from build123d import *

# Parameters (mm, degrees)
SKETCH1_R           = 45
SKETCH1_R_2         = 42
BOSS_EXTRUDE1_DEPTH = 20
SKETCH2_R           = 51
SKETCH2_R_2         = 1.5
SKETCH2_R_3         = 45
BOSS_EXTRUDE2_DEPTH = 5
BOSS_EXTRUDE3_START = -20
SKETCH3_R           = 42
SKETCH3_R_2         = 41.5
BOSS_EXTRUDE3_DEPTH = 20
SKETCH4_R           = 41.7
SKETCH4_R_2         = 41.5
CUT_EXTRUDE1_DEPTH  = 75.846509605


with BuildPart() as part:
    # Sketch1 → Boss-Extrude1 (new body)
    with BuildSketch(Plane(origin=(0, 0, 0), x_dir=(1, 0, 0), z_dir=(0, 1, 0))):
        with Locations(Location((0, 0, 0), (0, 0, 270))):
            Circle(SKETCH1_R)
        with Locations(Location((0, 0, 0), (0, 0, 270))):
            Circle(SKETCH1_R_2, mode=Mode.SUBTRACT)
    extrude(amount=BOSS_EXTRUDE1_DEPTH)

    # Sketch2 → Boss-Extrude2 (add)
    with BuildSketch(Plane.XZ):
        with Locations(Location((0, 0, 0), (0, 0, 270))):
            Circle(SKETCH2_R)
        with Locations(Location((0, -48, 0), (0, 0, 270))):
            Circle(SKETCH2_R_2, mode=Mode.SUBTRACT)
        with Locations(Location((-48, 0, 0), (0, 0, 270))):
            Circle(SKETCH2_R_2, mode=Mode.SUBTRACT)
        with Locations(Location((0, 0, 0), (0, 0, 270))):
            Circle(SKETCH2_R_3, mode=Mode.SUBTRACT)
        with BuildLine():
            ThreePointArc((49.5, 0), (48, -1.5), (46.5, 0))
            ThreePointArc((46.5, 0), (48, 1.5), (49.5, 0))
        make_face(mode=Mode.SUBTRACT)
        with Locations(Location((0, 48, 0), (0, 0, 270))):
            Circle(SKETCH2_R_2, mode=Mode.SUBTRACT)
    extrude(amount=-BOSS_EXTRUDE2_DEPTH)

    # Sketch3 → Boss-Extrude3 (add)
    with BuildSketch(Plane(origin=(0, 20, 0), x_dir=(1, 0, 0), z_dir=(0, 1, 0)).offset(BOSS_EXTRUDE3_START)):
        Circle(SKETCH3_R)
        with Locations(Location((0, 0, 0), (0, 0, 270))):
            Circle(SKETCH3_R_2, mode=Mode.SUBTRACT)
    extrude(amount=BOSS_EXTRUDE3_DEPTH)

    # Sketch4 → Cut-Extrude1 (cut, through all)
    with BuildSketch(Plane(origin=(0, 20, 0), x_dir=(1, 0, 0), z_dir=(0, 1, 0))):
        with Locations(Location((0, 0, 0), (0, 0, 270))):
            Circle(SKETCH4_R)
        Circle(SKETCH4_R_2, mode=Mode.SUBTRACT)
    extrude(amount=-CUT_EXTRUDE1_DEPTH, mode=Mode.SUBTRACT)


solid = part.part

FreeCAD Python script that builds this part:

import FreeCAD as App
import Part
import Sketcher

doc = App.newDocument("Part")
body = doc.addObject("PartDesign::Body", "Body")

sketch1 = body.newObject("Sketcher::SketchObject", "Sketch")
sketch1.AttachmentSupport = (doc.getObject("XZ_Plane"), [""])
sketch1.MapMode = "FlatFace"
sketch1.addGeometry([
    Part.Circle(App.Vector(0, 0, 0), App.Vector(0, 0, 1), 45),
    Part.Circle(App.Vector(0, 0, 0), App.Vector(0, 0, 1), 42),
], False)
sketch1.addConstraint([
    Sketcher.Constraint("Coincident", 0, 3, -1, 1),
    Sketcher.Constraint("Coincident", 1, 3, -1, 1),
    Sketcher.Constraint("Diameter", 0, 90.0),
    Sketcher.Constraint("Diameter", 1, 84.0),
])
pad1 = body.newObject("PartDesign::Pad", "Pad")
pad1.Profile = sketch1
pad1.Length = 20
pad1.Reversed = True

sketch2 = body.newObject("Sketcher::SketchObject", "Sketch001")
sketch2.AttachmentSupport = (doc.getObject("XZ_Plane"), [""])
sketch2.MapMode = "FlatFace"
sketch2.addGeometry([
    Part.Circle(App.Vector(0, 0, 0), App.Vector(0, 0, 1), 51),
    Part.Circle(App.Vector(0, 48, 0), App.Vector(0, 0, 1), 1.5),
    Part.Circle(App.Vector(-48, 0, 0), App.Vector(0, 0, 1), 1.5),
    Part.Circle(App.Vector(48, 0, 0), App.Vector(0, 0, 1), 1.5),
    Part.Circle(App.Vector(0, 0, 0), App.Vector(0, 0, 1), 45),
    Part.Circle(App.Vector(0, -48, 0), App.Vector(0, 0, 1), 1.5),
], False)
sketch2.addConstraint([
    Sketcher.Constraint("Coincident", 0, 3, -1, 1),
    Sketcher.Constraint("Coincident", 4, 3, -1, 1),
    Sketcher.Constraint("Equal", 1, 2),
    Sketcher.Constraint("Equal", 2, 3),
    Sketcher.Constraint("Equal", 3, 5),
    Sketcher.Constraint("Symmetric", 2, 3, 3, 3, -1, 1),
    Sketcher.Constraint("Symmetric", 1, 3, 5, 3, -1, 1),
    Sketcher.Constraint("PointOnObject", 1, 3, -2),
    Sketcher.Constraint("PointOnObject", 2, 3, -1),
    Sketcher.Constraint("Diameter", 0, 102.0),
    Sketcher.Constraint("Diameter", 1, 3.0),
    Sketcher.Constraint("Diameter", 4, 90.0),
    Sketcher.Constraint("DistanceY", -1, 1, 1, 3, 48.0),
    Sketcher.Constraint("DistanceX", 2, 3, -1, 1, 48.0),
])
pad2 = body.newObject("PartDesign::Pad", "Pad001")
pad2.Profile = sketch2
pad2.Length = 5
pad2.Reversed = True

sketch3 = body.newObject("Sketcher::SketchObject", "Sketch002")
sketch3.AttachmentSupport = (doc.getObject("XZ_Plane"), [""])
sketch3.MapMode = "FlatFace"
sketch3.addGeometry([
    Part.Circle(App.Vector(0, 0, 0), App.Vector(0, 0, 1), 42),
    Part.Circle(App.Vector(0, 0, 0), App.Vector(0, 0, 1), 42),
], False)
sketch3.addConstraint([
    Sketcher.Constraint("Coincident", 0, 3, -1, 1),
    Sketcher.Constraint("Coincident", 1, 3, -1, 1),
    Sketcher.Constraint("Diameter", 0, 84.0),
    Sketcher.Constraint("Diameter", 1, 83.0),
])
pad3 = body.newObject("PartDesign::Pad", "Pad002")
pad3.Profile = sketch3
pad3.Length = 20
pad3.Reversed = True

sketch4 = body.newObject("Sketcher::SketchObject", "Sketch003")
sketch4.AttachmentSupport = (doc.getObject("XZ_Plane"), [""])
sketch4.MapMode = "FlatFace"
sketch4.AttachmentOffset = App.Placement(App.Vector(0, 0, -20), App.Rotation())
sketch4.addGeometry([
    Part.Circle(App.Vector(0, 0, 0), App.Vector(0, 0, 1), 42),
    Part.Circle(App.Vector(0, 0, 0), App.Vector(0, 0, 1), 42),
], False)
sketch4.addConstraint([
    Sketcher.Constraint("Coincident", 0, 3, -1, 1),
    Sketcher.Constraint("Coincident", 1, 3, -1, 1),
    Sketcher.Constraint("Diameter", 1, 83.0),
    Sketcher.Constraint("Diameter", 0, 83.4),
])
pocket1 = body.newObject("PartDesign::Pocket", "Pocket")
pocket1.Profile = sketch4
pocket1.Type = "ThroughAll"
pocket1.Reversed = True

doc.recompute()
